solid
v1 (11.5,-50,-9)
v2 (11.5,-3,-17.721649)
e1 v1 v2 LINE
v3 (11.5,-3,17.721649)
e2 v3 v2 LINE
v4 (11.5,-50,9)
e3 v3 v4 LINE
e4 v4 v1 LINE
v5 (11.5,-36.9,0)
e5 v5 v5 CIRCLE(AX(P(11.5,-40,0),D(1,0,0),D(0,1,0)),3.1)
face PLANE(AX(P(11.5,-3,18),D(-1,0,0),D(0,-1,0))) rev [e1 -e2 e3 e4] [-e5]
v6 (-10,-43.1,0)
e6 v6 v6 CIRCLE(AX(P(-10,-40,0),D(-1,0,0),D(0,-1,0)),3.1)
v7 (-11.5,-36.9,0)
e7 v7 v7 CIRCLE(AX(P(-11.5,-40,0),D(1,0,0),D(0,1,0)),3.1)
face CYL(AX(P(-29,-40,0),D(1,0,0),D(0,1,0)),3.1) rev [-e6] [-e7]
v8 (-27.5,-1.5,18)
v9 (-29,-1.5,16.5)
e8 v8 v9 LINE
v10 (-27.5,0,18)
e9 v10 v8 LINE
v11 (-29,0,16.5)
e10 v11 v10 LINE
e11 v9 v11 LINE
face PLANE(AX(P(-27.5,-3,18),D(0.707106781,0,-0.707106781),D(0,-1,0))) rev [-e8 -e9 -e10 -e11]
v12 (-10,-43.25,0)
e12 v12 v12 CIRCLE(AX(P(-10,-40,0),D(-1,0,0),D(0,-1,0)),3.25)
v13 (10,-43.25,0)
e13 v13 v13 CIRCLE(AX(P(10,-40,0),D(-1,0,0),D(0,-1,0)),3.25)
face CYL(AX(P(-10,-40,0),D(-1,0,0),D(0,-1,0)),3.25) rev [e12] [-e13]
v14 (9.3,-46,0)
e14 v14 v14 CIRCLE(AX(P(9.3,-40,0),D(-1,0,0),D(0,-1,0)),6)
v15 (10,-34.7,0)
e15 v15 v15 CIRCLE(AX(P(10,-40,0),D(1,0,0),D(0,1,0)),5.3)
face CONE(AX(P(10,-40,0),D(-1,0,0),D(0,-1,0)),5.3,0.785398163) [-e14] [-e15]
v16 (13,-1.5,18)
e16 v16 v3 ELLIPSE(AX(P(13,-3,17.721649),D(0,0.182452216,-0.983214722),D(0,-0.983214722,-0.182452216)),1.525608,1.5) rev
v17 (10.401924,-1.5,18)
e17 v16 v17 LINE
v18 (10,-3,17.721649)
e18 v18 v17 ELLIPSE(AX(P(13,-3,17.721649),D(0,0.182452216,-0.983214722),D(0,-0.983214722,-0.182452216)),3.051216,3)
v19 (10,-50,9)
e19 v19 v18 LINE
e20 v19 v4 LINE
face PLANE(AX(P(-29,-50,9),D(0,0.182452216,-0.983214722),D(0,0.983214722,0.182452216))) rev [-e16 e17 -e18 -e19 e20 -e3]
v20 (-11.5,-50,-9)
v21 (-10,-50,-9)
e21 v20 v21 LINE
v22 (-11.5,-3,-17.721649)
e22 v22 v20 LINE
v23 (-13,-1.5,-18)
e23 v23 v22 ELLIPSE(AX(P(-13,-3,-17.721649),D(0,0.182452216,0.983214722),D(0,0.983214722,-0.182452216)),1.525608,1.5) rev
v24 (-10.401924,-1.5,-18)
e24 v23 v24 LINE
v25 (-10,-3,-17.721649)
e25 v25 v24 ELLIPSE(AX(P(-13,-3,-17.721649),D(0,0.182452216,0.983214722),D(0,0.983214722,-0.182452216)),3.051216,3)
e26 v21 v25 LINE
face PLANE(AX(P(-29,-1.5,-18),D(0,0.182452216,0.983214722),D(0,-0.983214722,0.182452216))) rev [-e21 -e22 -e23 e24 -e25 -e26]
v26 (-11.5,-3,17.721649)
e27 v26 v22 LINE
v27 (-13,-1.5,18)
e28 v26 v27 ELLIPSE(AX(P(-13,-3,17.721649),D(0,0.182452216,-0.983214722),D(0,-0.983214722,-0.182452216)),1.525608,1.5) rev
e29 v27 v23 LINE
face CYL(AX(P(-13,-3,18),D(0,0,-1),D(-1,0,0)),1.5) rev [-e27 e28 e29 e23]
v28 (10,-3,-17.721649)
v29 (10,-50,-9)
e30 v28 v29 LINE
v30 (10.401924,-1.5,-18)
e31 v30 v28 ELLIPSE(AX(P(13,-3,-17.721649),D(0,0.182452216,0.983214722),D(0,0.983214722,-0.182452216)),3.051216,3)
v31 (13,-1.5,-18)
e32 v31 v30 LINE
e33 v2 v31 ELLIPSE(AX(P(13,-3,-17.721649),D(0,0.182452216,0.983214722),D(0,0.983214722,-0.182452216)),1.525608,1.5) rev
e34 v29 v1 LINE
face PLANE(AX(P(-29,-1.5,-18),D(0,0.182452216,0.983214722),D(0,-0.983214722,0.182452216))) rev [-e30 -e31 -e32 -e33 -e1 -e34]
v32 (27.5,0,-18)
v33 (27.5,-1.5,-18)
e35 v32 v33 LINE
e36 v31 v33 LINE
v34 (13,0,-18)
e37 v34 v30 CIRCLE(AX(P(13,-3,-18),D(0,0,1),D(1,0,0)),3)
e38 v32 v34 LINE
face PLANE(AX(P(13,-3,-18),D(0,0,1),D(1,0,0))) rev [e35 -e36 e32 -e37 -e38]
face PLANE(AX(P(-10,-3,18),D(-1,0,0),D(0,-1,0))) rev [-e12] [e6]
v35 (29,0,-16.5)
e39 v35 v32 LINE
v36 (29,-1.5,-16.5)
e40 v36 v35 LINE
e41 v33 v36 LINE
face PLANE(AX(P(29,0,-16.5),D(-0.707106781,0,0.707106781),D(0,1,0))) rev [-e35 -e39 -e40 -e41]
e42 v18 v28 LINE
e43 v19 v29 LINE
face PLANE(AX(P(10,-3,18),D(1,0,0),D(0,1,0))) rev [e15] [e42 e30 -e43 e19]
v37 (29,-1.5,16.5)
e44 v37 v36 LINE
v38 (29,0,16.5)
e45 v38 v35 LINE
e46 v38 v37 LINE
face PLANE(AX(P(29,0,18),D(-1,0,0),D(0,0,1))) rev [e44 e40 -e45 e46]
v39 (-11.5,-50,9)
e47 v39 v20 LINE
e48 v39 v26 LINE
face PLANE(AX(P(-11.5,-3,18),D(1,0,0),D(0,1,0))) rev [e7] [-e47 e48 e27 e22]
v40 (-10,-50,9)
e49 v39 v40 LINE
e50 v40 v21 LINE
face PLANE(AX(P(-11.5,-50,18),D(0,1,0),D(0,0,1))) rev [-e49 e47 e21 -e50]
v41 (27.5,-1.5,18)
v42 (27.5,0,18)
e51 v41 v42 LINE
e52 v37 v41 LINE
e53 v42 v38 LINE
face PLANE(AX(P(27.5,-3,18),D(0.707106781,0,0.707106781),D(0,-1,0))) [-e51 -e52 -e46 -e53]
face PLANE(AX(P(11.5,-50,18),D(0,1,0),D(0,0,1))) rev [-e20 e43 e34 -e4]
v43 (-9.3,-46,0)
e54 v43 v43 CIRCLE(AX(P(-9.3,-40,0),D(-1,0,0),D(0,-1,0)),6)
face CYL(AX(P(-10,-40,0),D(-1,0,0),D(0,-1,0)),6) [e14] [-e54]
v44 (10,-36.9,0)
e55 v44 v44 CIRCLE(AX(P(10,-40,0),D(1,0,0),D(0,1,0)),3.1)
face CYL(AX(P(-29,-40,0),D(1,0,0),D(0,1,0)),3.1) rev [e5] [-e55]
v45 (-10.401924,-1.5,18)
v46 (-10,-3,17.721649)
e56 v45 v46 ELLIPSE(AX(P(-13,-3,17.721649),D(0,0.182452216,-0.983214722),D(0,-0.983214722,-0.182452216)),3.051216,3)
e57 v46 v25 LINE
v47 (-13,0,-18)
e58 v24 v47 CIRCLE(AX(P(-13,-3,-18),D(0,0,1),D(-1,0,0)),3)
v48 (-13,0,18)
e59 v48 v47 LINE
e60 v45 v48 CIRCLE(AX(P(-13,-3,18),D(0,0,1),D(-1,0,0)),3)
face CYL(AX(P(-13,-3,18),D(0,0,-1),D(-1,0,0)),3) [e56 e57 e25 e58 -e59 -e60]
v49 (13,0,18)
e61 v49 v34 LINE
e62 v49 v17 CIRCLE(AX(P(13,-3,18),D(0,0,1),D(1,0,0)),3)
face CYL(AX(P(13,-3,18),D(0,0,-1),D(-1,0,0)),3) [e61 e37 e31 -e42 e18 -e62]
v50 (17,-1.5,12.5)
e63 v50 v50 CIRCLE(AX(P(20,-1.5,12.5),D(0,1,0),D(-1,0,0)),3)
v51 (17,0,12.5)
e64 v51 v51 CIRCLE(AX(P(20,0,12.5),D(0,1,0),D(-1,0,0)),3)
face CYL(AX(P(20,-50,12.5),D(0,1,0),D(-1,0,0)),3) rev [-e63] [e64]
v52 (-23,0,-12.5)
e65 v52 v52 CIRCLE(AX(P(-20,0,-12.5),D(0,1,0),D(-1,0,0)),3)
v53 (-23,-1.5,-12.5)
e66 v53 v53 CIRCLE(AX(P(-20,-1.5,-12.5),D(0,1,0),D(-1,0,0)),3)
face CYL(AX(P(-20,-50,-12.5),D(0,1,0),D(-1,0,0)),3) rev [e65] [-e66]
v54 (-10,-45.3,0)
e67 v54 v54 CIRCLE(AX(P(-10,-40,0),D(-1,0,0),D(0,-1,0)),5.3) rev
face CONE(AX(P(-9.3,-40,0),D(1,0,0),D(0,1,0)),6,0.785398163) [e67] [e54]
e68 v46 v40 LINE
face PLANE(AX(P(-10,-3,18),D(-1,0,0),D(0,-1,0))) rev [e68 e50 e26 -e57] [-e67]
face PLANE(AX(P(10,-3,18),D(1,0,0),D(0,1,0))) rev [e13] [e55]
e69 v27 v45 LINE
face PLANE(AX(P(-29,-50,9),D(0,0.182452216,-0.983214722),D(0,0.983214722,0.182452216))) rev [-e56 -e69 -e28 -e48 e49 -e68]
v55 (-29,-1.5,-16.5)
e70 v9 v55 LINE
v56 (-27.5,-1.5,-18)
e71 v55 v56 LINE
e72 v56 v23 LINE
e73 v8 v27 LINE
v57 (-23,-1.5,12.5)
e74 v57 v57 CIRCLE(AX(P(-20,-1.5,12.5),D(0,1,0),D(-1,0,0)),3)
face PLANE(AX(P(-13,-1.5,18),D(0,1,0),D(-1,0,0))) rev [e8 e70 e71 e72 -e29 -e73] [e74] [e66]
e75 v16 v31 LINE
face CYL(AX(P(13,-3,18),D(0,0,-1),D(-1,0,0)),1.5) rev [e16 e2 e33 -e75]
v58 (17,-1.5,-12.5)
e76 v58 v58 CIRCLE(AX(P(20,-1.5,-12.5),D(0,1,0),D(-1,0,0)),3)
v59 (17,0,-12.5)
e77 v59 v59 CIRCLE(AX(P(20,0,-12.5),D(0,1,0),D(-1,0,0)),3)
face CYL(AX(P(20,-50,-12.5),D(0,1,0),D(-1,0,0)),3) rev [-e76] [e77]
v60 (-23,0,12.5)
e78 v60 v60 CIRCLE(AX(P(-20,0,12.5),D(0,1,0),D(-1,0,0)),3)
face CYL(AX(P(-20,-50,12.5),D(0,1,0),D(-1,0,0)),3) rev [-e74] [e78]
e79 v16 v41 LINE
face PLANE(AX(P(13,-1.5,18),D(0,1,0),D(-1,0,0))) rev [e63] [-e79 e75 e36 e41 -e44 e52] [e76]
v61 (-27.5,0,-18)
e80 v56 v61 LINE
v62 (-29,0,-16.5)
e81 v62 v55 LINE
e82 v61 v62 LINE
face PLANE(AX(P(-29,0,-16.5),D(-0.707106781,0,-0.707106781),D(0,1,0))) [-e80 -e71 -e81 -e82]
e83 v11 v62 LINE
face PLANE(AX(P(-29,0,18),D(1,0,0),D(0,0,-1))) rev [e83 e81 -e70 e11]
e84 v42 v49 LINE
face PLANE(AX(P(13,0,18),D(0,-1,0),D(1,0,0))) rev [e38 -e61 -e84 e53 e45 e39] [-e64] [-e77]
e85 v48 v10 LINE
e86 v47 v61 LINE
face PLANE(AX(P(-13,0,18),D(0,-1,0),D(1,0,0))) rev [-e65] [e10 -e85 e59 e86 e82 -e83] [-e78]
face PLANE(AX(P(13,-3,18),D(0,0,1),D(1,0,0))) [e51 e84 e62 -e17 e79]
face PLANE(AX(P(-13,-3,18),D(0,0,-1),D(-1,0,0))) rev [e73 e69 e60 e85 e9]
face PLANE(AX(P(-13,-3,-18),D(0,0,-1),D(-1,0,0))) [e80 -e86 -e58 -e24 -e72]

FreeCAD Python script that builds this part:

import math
import FreeCAD as App
import Part
import Sketcher
from FreeCAD import Vector


def edges_at(feature, points):
    """Names of the edges that pass closest to the given points."""
    edges = feature.Shape.Edges
    near = lambda p: min(range(len(edges)), key=lambda i: edges[i].distToShape(Part.Vertex(*p))[0])
    return sorted({f"Edge{near(p) + 1}" for p in points})


def add_polygon(sketch, points):
    """Adds a closed chain of lines whose ends are joined by coincident constraints."""
    first, n = sketch.GeometryCount, len(points)
    for a, b in zip(points, points[1:] + points[:1]):
        sketch.addGeometry(Part.LineSegment(App.Vector(*a, 0), App.Vector(*b, 0)), False)
    for i in range(n):
        sketch.addConstraint(Sketcher.Constraint("Coincident", first + i, 2, first + (i + 1) % n, 1))

doc = App.newDocument("Part")
body = doc.addObject("PartDesign::Body", "Body")

# Sketch on XY plane
sketch1 = doc.addObject("Sketcher::SketchObject", "Sketch")
body.addObject(sketch1)
sketch1.AttachmentSupport = (doc.XY_Plane, [""])
sketch1.MapMode = "FlatFace"
sketch1.addGeometry([
    Part.LineSegment(Vector(-13, 0, 0), Vector(-29, 0, 0)),  # 0
    Part.LineSegment(Vector(-29, 0, 0), Vector(-29, -1.5, 0)),  # 1
    Part.LineSegment(Vector(-29, -1.5, 0), Vector(-13, -1.5, 0)),  # 2
    Part.ArcOfCircle(Part.Circle(Vector(-13, -3, 0), Vector(0, 0, 1), 1.5), math.radians(0), math.radians(90)),  # 3
    Part.LineSegment(Vector(-11.5, -3, 0), Vector(-11.5, -50, 0)),  # 4
    Part.LineSegment(Vector(-11.5, -50, 0), Vector(-10, -50, 0)),  # 5
    Part.LineSegment(Vector(-10, -50, 0), Vector(-10, -3, 0)),  # 6
    Part.ArcOfCircle(Part.Circle(Vector(-13, -3, 0), Vector(0, 0, 1), 3), math.radians(0), math.radians(90)),  # 7
], False)
sketch1.addConstraint([
    Sketcher.Constraint("Coincident", 0, 2, 1, 1),
    Sketcher.Constraint("Coincident", 1, 2, 2, 1),
    Sketcher.Constraint("Tangent", 2, 2, 3, 2),
    Sketcher.Constraint("Tangent", 3, 1, 4, 1),
    Sketcher.Constraint("Coincident", 4, 2, 5, 1),
    Sketcher.Constraint("Coincident", 5, 2, 6, 1),
    Sketcher.Constraint("Tangent", 6, 2, 7, 1),
    Sketcher.Constraint("Tangent", 7, 2, 0, 1),
    Sketcher.Constraint("Horizontal", 0),
    Sketcher.Constraint("Vertical", 1),
    Sketcher.Constraint("Horizontal", 2),
    Sketcher.Constraint("Vertical", 4),
    Sketcher.Constraint("Horizontal", 5),
    Sketcher.Constraint("Vertical", 6),
    Sketcher.Constraint("Coincident", 7, 3, 3, 3),
    Sketcher.Constraint("PointOnObject", 0, 2, -1),
    Sketcher.Constraint("Radius", 7, 3.0),
    Sketcher.Constraint("Radius", 3, 1.5),
    Sketcher.Constraint("DistanceX", 0, 2, 0, 1, 16.0),
    Sketcher.Constraint("DistanceY", 4, 2, 4, 1, 47.0),
    Sketcher.Constraint("DistanceX", 3, 3, -1, 1, 13.0),
])
pad1 = doc.addObject("PartDesign::Pad", "Pad")
body.addObject(pad1)
pad1.Profile = sketch1
pad1.Length = 36
pad1.Midplane = True
body2 = doc.addObject("PartDesign::Body", "Body001")

# Sketch on XY plane
sketch2 = doc.addObject("Sketcher::SketchObject", "Sketch001")
body2.addObject(sketch2)
sketch2.AttachmentSupport = (doc.getObject("XY_Plane001"), [""])
sketch2.MapMode = "FlatFace"
sketch2.addGeometry([
    Part.LineSegment(Vector(10, -50, 0), Vector(11.5, -50, 0)),  # 0
    Part.LineSegment(Vector(11.5, -50, 0), Vector(11.5, -3, 0)),  # 1
    Part.ArcOfCircle(Part.Circle(Vector(13, -3, 0), Vector(0, 0, 1), 1.5), math.radians(90), math.radians(180)),  # 2
    Part.LineSegment(Vector(13, -1.5, 0), Vector(29, -1.5, 0)),  # 3
    Part.LineSegment(Vector(29, -1.5, 0), Vector(29, 0, 0)),  # 4
    Part.LineSegment(Vector(29, 0, 0), Vector(13, 0, 0)),  # 5
    Part.ArcOfCircle(Part.Circle(Vector(13, -3, 0), Vector(0, 0, 1), 3), math.radians(90), math.radians(180)),  # 6
    Part.LineSegment(Vector(10, -3, 0), Vector(10, -50, 0)),  # 7
], False)
sketch2.addConstraint([
    Sketcher.Constraint("Coincident", 0, 2, 1, 1),
    Sketcher.Constraint("Tangent", 1, 2, 2, 2),
    Sketcher.Constraint("Tangent", 2, 1, 3, 1),
    Sketcher.Constraint("Coincident", 3, 2, 4, 1),
    Sketcher.Constraint("Coincident", 4, 2, 5, 1),
    Sketcher.Constraint("Tangent", 5, 2, 6, 1),
    Sketcher.Constraint("Tangent", 6, 2, 7, 1),
    Sketcher.Constraint("Coincident", 7, 2, 0, 1),
    Sketcher.Constraint("Horizontal", 0),
    Sketcher.Constraint("Vertical", 1),
    Sketcher.Constraint("Horizontal", 3),
    Sketcher.Constraint("Vertical", 4),
    Sketcher.Constraint("Horizontal", 5),
    Sketcher.Constraint("Vertical", 7),
    Sketcher.Constraint("Coincident", 6, 3, 2, 3),
    Sketcher.Constraint("PointOnObject", 4, 2, -1),
    Sketcher.Constraint("Radius", 6, 3.0),
    Sketcher.Constraint("Radius", 2, 1.5),
    Sketcher.Constraint("DistanceX", 3, 1, 3, 2, 16.0),
    Sketcher.Constraint("DistanceY", 1, 1, 1, 2, 47.0),
    Sketcher.Constraint("DistanceX", -1, 1, 2, 3, 13.0),
])
pad2 = doc.addObject("PartDesign::Pad", "Pad001")
body2.addObject(pad2)
pad2.Profile = sketch2
pad2.Length = 36
pad2.Midplane = True
body3 = doc.addObject("PartDesign::Body", "Body002")
body3.AllowCompound = True

# Sketch on YZ plane
sketch3 = doc.addObject("Sketcher::SketchObject", "Sketch002")
body3.addObject(sketch3)
sketch3.AttachmentSupport = (doc.getObject("YZ_Plane002"), [""])
sketch3.MapMode = "FlatFace"
add_polygon(sketch3, [(-50, 18), (-50, 9), (-1.5, 18)])  # lines 0-2
add_polygon(sketch3, [(-50, -9), (-50, -18), (-1.5, -18)])  # lines 3-5
sketch3.addConstraint([
    Sketcher.Constraint("Vertical", 0),
    Sketcher.Constraint("Horizontal", 2),
    Sketcher.Constraint("Vertical", 3),
    Sketcher.Constraint("Horizontal", 4),
    Sketcher.Constraint("Symmetric", 2, 2, 3, 2, -1),
    Sketcher.Constraint("Vertical", 1, 2, 4, 2),
    Sketcher.Constraint("Equal", 0, 3),
    Sketcher.Constraint("DistanceY", 0, 2, 0, 1, 9.0),
    Sketcher.Constraint("DistanceX", 2, 2, 2, 1, 48.5),
    Sketcher.Constraint("DistanceX", 0, 2, -1, 1, 50.0),
    Sketcher.Constraint("DistanceY", -1, 1, 0, 2, 9.0),
])
pad3 = doc.addObject("PartDesign::Pad", "Pad002")
body3.addObject(pad3)
pad3.Profile = sketch3
pad3.Type = "TwoLengths"
pad3.Length = 61.539243
pad3.Length2 = 61.539243
doc.recompute()

body4 = doc.addObject("PartDesign::Body", "Body003")
body4.BaseFeature = body3
boolean = doc.addObject("PartDesign::Boolean", "Boolean")
body.addObject(boolean)
boolean.Type = "Cut"
boolean.addObjects([body4])
doc.recompute()

boolean2 = doc.addObject("PartDesign::Boolean", "Boolean001")
body2.addObject(boolean2)
boolean2.Type = "Cut"
boolean2.addObjects([body3])
body5 = doc.addObject("PartDesign::Body", "Body004")

# Sketch on YZ plane
sketch4 = doc.addObject("Sketcher::SketchObject", "Sketch003")
body5.addObject(sketch4)
sketch4.AttachmentSupport = (doc.getObject("YZ_Plane004"), [""])
sketch4.MapMode = "FlatFace"
sketch4.AttachmentOffset = App.Placement(Vector(0, 0, 11.5), App.Rotation())
sketch4.addGeometry(Part.Circle(Vector(-40, 0, 0), Vector(0, 0, 1), 3.1), False)
sketch4.addConstraint([
    Sketcher.Constraint("PointOnObject", 0, 3, -1),
    Sketcher.Constraint("Diameter", 0, 6.2),
    Sketcher.Constraint("DistanceX", 0, 3, -1, 1, 40.0),
])
pad4 = doc.addObject("PartDesign::Pad", "Pad003")
body5.addObject(pad4)
pad4.Profile = sketch4
pad4.Length = 67.815043
pad4.Reversed = True
doc.recompute()

body6 = doc.addObject("PartDesign::Body", "Body005")
body6.BaseFeature = body5
boolean3 = doc.addObject("PartDesign::Boolean", "Boolean002")
body.addObject(boolean3)
boolean3.Type = "Cut"
boolean3.addObjects([body6])
doc.recompute()

boolean4 = doc.addObject("PartDesign::Boolean", "Boolean003")
body2.addObject(boolean4)
boolean4.Type = "Cut"
boolean4.addObjects([body5])
body.AllowCompound = True
doc.recompute()

boolean5 = doc.addObject("PartDesign::Boolean", "Boolean004")
body.addObject(boolean5)
boolean5.Type = "Fuse"
boolean5.addObjects([body2])

# Sketch on XY plane
sketch5 = doc.addObject("Sketcher::SketchObject", "Sketch004")
body.addObject(sketch5)
sketch5.AttachmentSupport = (doc.XY_Plane, [""])
sketch5.MapMode = "FlatFace"
add_polygon(sketch5, [(-10, -36.75), (10, -36.75), (10, -34.7), (9.3, -34), (-9.3, -34), (-10, -34.7)])  # lines 0-5
sketch5.addGeometry(Part.LineSegment(Vector(-10, -40, 0), Vector(10, -40, 0)), True)  # axis
sketch5.addConstraint([
    Sketcher.Constraint("Horizontal", 0),
    Sketcher.Constraint("Vertical", 1),
    Sketcher.Constraint("Horizontal", 3),
    Sketcher.Constraint("Vertical", 5),
    Sketcher.Constraint("Horizontal", 6),
    Sketcher.Constraint("Symmetric", 1, 2, 4, 2, -2),
    Sketcher.Constraint("Perpendicular", 2, 4),
    Sketcher.Constraint("Vertical", 5, 2, 6, 1),
    Sketcher.Constraint("Vertical", 1, 2, 6, 2),
    Sketcher.Constraint("Equal", 2, 4),
    Sketcher.Constraint("DistanceX", 0, 1, 0, 2, 20.0),
    Sketcher.Constraint("DistanceX", 3, 2, 3, 1, 18.6),
    Sketcher.Constraint("DistanceY", 2, 2, -1, 1, 34.0),
    Sketcher.Constraint("DistanceY", 6, 1, -1, 1, 40.0),
    Sketcher.Constraint("DistanceY", 1, 1, 1, 2, 2.05),
])
revolution = doc.addObject("PartDesign::Revolution", "Revolution")
body.addObject(revolution)
revolution.Profile = sketch5
revolution.ReferenceAxis = (sketch5, ["Axis0"])
revolution.Angle = 360

# Sketch on XZ plane
sketch6 = doc.addObject("Sketcher::SketchObject", "Sketch005")
body.addObject(sketch6)
sketch6.AttachmentSupport = (doc.XZ_Plane, [""])
sketch6.MapMode = "FlatFace"
sketch6.addGeometry([
    Part.Circle(Vector(-20, -12.5, 0), Vector(0, 0, 1), 3),
    Part.Circle(Vector(-20, 12.5, 0), Vector(0, 0, 1), 3),
    Part.Circle(Vector(20, -12.5, 0), Vector(0, 0, 1), 3),
    Part.Circle(Vector(20, 12.5, 0), Vector(0, 0, 1), 3),
], False)
sketch6.addConstraint([
    Sketcher.Constraint("Equal", 0, 1),
    Sketcher.Constraint("Equal", 1, 2),
    Sketcher.Constraint("Equal", 2, 3),
    Sketcher.Constraint("Symmetric", 1, 3, 2, 3, -1, 1),
    Sketcher.Constraint("Symmetric", 0, 3, 3, 3, -1, 1),
    Sketcher.Constraint("Symmetric", 0, 3, 2, 3, -2),
    Sketcher.Constraint("Diameter", 0, 6.0),
    Sketcher.Constraint("DistanceX", 0, 3, -1, 1, 20.0),
    Sketcher.Constraint("DistanceY", 0, 3, 1, 3, 25.0),
])
pocket1 = doc.addObject("PartDesign::Pocket", "Pocket")
body.addObject(pocket1)
pocket1.Profile = sketch6
pocket1.Type = "ThroughAll"
pocket1.Reversed = True
doc.recompute()

chamfer = doc.addObject("PartDesign::Chamfer", "Chamfer")
body.addObject(chamfer)
chamfer.Base = (pocket1, edges_at(pocket1, [
    (-29, -0.75, 18),
    (29, -0.75, -18),
    (29, -0.75, 18),
    (-29, -0.75, -18),
]))
chamfer.Size = 1.5

doc.recompute()
